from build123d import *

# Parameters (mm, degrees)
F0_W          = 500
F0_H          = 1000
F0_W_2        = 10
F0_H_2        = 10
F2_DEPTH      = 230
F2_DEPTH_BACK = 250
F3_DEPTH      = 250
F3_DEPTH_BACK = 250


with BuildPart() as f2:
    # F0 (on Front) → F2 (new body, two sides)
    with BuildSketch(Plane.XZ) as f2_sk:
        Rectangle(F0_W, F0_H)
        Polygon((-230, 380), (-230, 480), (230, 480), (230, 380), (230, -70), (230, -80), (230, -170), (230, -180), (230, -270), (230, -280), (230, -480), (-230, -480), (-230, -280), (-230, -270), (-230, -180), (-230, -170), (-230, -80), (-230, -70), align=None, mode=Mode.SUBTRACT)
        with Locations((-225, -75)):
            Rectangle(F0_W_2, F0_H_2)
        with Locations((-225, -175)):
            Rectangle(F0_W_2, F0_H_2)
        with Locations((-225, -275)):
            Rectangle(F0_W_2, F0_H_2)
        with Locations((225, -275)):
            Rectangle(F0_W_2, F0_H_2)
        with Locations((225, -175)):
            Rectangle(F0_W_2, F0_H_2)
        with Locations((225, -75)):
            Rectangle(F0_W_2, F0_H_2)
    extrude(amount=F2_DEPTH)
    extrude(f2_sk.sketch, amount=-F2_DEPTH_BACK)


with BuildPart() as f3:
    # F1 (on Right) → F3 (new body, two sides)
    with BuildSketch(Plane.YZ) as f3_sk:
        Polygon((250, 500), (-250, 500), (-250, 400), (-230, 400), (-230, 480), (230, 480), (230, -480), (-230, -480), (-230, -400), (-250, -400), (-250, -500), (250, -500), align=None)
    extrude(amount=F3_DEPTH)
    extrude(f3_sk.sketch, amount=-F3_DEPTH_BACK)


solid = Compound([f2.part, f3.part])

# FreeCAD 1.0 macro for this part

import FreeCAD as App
import Part
import Sketcher

V = App.Vector
Q = App.Units.Quantity

doc = App.newDocument("Part")
body = doc.addObject("PartDesign::Body", "Body")

# Sketch on XZ plane
sketch1 = body.newObject("Sketcher::SketchObject", "Sketch")
sketch1.AttachmentSupport = (doc.getObject("XZ_Plane"), [""])
sketch1.MapMode = "FlatFace"
sketch1.addGeometry(Part.LineSegment(V(-250, 500, 0), V(-250, -500, 0)), False)
sketch1.addGeometry(Part.LineSegment(V(-250, -500, 0), V(250, -500, 0)), False)
sketch1.addGeometry(Part.LineSegment(V(250, -500, 0), V(250, 500, 0)), False)
sketch1.addGeometry(Part.LineSegment(V(250, 500, 0), V(-250, 500, 0)), False)
sketch1.addGeometry(Part.LineSegment(V(-230, -480, 0), V(-230, -280, 0)), False)
sketch1.addGeometry(Part.LineSegment(V(-230, -280, 0), V(-220, -280, 0)), False)
sketch1.addGeometry(Part.LineSegment(V(-220, -280, 0), V(-220, -270, 0)), False)
sketch1.addGeometry(Part.LineSegment(V(-220, -270, 0), V(-230, -270, 0)), False)
sketch1.addGeometry(Part.LineSegment(V(-230, -270, 0), V(-230, -180, 0)), False)
sketch1.addGeometry(Part.LineSegment(V(-230, -180, 0), V(-220, -180, 0)), False)
sketch1.addGeometry(Part.LineSegment(V(-220, -180, 0), V(-220, -170, 0)), False)
sketch1.addGeometry(Part.LineSegment(V(-220, -170, 0), V(-230, -170, 0)), False)
sketch1.addGeometry(Part.LineSegment(V(-230, -170, 0), V(-230, -80, 0)), False)
sketch1.addGeometry(Part.LineSegment(V(-230, -80, 0), V(-220, -80, 0)), False)
sketch1.addGeometry(Part.LineSegment(V(-220, -80, 0), V(-220, -70, 0)), False)
sketch1.addGeometry(Part.LineSegment(V(-220, -70, 0), V(-230, -70, 0)), False)
sketch1.addGeometry(Part.LineSegment(V(-230, -70, 0), V(-230, 480, 0)), False)
sketch1.addGeometry(Part.LineSegment(V(-230, 480, 0), V(230, 480, 0)), False)
sketch1.addGeometry(Part.LineSegment(V(230, 480, 0), V(230, -70, 0)), False)
sketch1.addGeometry(Part.LineSegment(V(230, -70, 0), V(220, -70, 0)), False)
sketch1.addGeometry(Part.LineSegment(V(220, -70, 0), V(220, -80, 0)), False)
sketch1.addGeometry(Part.LineSegment(V(220, -80, 0), V(230, -80, 0)), False)
sketch1.addGeometry(Part.LineSegment(V(230, -80, 0), V(230, -170, 0)), False)
sketch1.addGeometry(Part.LineSegment(V(230, -170, 0), V(220, -170, 0)), False)
sketch1.addGeometry(Part.LineSegment(V(220, -170, 0), V(220, -180, 0)), False)
sketch1.addGeometry(Part.LineSegment(V(220, -180, 0), V(230, -180, 0)), False)
sketch1.addGeometry(Part.LineSegment(V(230, -180, 0), V(230, -270, 0)), False)
sketch1.addGeometry(Part.LineSegment(V(230, -270, 0), V(220, -270, 0)), False)
sketch1.addGeometry(Part.LineSegment(V(220, -270, 0), V(220, -280, 0)), False)
sketch1.addGeometry(Part.LineSegment(V(220, -280, 0), V(230, -280, 0)), False)
sketch1.addGeometry(Part.LineSegment(V(230, -280, 0), V(230, -480, 0)), False)
sketch1.addGeometry(Part.LineSegment(V(230, -480, 0), V(-230, -480, 0)), False)
sketch1.addConstraint(Sketcher.Constraint("Coincident", 0, 2, 1, 1))
sketch1.addConstraint(Sketcher.Constraint("Coincident", 1, 2, 2, 1))
sketch1.addConstraint(Sketcher.Constraint("Coincident", 2, 2, 3, 1))
sketch1.addConstraint(Sketcher.Constraint("Coincident", 3, 2, 0, 1))
sketch1.addConstraint(Sketcher.Constraint("Coincident", 4, 2, 5, 1))
sketch1.addConstraint(Sketcher.Constraint("Coincident", 5, 2, 6, 1))
sketch1.addConstraint(Sketcher.Constraint("Coincident", 6, 2, 7, 1))
sketch1.addConstraint(Sketcher.Constraint("Coincident", 7, 2, 8, 1))
sketch1.addConstraint(Sketcher.Constraint("Coincident", 8, 2, 9, 1))
sketch1.addConstraint(Sketcher.Constraint("Coincident", 9, 2, 10, 1))
sketch1.addConstraint(Sketcher.Constraint("Coincident", 10, 2, 11, 1))
sketch1.addConstraint(Sketcher.Constraint("Coincident", 11, 2, 12, 1))
sketch1.addConstraint(Sketcher.Constraint("Coincident", 12, 2, 13, 1))
sketch1.addConstraint(Sketcher.Constraint("Coincident", 13, 2, 14, 1))
sketch1.addConstraint(Sketcher.Constraint("Coincident", 14, 2, 15, 1))
sketch1.addConstraint(Sketcher.Constraint("Coincident", 15, 2, 16, 1))
sketch1.addConstraint(Sketcher.Constraint("Coincident", 16, 2, 17, 1))
sketch1.addConstraint(Sketcher.Constraint("Coincident", 17, 2, 18, 1))
sketch1.addConstraint(Sketcher.Constraint("Coincident", 18, 2, 19, 1))
sketch1.addConstraint(Sketcher.Constraint("Coincident", 19, 2, 20, 1))
sketch1.addConstraint(Sketcher.Constraint("Coincident", 20, 2, 21, 1))
sketch1.addConstraint(Sketcher.Constraint("Coincident", 21, 2, 22, 1))
sketch1.addConstraint(Sketcher.Constraint("Coincident", 22, 2, 23, 1))
sketch1.addConstraint(Sketcher.Constraint("Coincident", 23, 2, 24, 1))
sketch1.addConstraint(Sketcher.Constraint("Coincident", 24, 2, 25, 1))
sketch1.addConstraint(Sketcher.Constraint("Coincident", 25, 2, 26, 1))
sketch1.addConstraint(Sketcher.Constraint("Coincident", 26, 2, 27, 1))
sketch1.addConstraint(Sketcher.Constraint("Coincident", 27, 2, 28, 1))
sketch1.addConstraint(Sketcher.Constraint("Coincident", 28, 2, 29, 1))
sketch1.addConstraint(Sketcher.Constraint("Coincident", 29, 2, 30, 1))
sketch1.addConstraint(Sketcher.Constraint("Coincident", 30, 2, 31, 1))
sketch1.addConstraint(Sketcher.Constraint("Coincident", 31, 2, 4, 1))
sketch1.addConstraint(Sketcher.Constraint("Vertical", 0))
sketch1.addConstraint(Sketcher.Constraint("Horizontal", 1))
sketch1.addConstraint(Sketcher.Constraint("Vertical", 2))
sketch1.addConstraint(Sketcher.Constraint("Horizontal", 3))
sketch1.addConstraint(Sketcher.Constraint("Vertical", 4))
sketch1.addConstraint(Sketcher.Constraint("Horizontal", 5))
sketch1.addConstraint(Sketcher.Constraint("Vertical", 6))
sketch1.addConstraint(Sketcher.Constraint("Horizontal", 7))
sketch1.addConstraint(Sketcher.Constraint("Vertical", 8))
sketch1.addConstraint(Sketcher.Constraint("Horizontal", 9))
sketch1.addConstraint(Sketcher.Constraint("Vertical", 10))
sketch1.addConstraint(Sketcher.Constraint("Horizontal", 11))
sketch1.addConstraint(Sketcher.Constraint("Vertical", 12))
sketch1.addConstraint(Sketcher.Constraint("Horizontal", 13))
sketch1.addConstraint(Sketcher.Constraint("Vertical", 14))
sketch1.addConstraint(Sketcher.Constraint("Horizontal", 15))
sketch1.addConstraint(Sketcher.Constraint("Vertical", 16))
sketch1.addConstraint(Sketcher.Constraint("Horizontal", 17))
sketch1.addConstraint(Sketcher.Constraint("Vertical", 18))
sketch1.addConstraint(Sketcher.Constraint("Horizontal", 19))
sketch1.addConstraint(Sketcher.Constraint("Vertical", 20))
sketch1.addConstraint(Sketcher.Constraint("Horizontal", 21))
sketch1.addConstraint(Sketcher.Constraint("Vertical", 22))
sketch1.addConstraint(Sketcher.Constraint("Horizontal", 23))
sketch1.addConstraint(Sketcher.Constraint("Vertical", 24))
sketch1.addConstraint(Sketcher.Constraint("Horizontal", 25))
sketch1.addConstraint(Sketcher.Constraint("Vertical", 26))
sketch1.addConstraint(Sketcher.Constraint("Horizontal", 27))
sketch1.addConstraint(Sketcher.Constraint("Vertical", 28))
sketch1.addConstraint(Sketcher.Constraint("Horizontal", 29))
sketch1.addConstraint(Sketcher.Constraint("Vertical", 30))
sketch1.addConstraint(Sketcher.Constraint("Horizontal", 31))
sketch1.addConstraint(Sketcher.Constraint("Symmetric", 0, 2, 2, 2, -1, 1))
sketch1.addConstraint(Sketcher.Constraint("Symmetric", 16, 2, 30, 2, -1, 1))
sketch1.addConstraint(Sketcher.Constraint("Symmetric", 15, 2, 18, 2, -2))
sketch1.addConstraint(Sketcher.Constraint("Symmetric", 13, 2, 20, 2, -2))
sketch1.addConstraint(Sketcher.Constraint("Symmetric", 11, 2, 22, 2, -2))
sketch1.addConstraint(Sketcher.Constraint("Symmetric", 9, 2, 24, 2, -2))
sketch1.addConstraint(Sketcher.Constraint("Symmetric", 7, 2, 26, 2, -2))
sketch1.addConstraint(Sketcher.Constraint("Symmetric", 5, 2, 28, 2, -2))
sketch1.addConstraint(Sketcher.Constraint("Vertical", 4, 2, 7, 2))
sketch1.addConstraint(Sketcher.Constraint("Vertical", 6, 2, 9, 2))
sketch1.addConstraint(Sketcher.Constraint("Vertical", 8, 2, 11, 2))
sketch1.addConstraint(Sketcher.Constraint("Vertical", 10, 2, 13, 2))
sketch1.addConstraint(Sketcher.Constraint("Vertical", 12, 2, 15, 2))
sketch1.addConstraint(Sketcher.Constraint("Equal", 29, 6))
sketch1.addConstraint(Sketcher.Constraint("Equal", 6, 10))
sketch1.addConstraint(Sketcher.Constraint("Equal", 8, 12))
sketch1.addConstraint(Sketcher.Constraint("Equal", 10, 14))
sketch1.addConstraint(Sketcher.Constraint("DistanceX", 1, 1, 1, 2, Q("500 mm")))
sketch1.addConstraint(Sketcher.Constraint("DistanceX", 5, 1, 5, 2, Q("10 mm")))
sketch1.addConstraint(Sketcher.Constraint("DistanceX", 17, 1, 17, 2, Q("460 mm")))
sketch1.addConstraint(Sketcher.Constraint("DistanceY", 0, 2, 0, 1, Q("1000 mm")))
sketch1.addConstraint(Sketcher.Constraint("DistanceY", 4, 1, 4, 2, Q("200 mm")))
sketch1.addConstraint(Sketcher.Constraint("DistanceY", 8, 1, 8, 2, Q("90 mm")))
sketch1.addConstraint(Sketcher.Constraint("DistanceY", 16, 1, 16, 2, Q("550 mm")))
pad1 = body.newObject("PartDesign::Pad", "Pad")
pad1.Profile = sketch1
pad1.Type = "TwoLengths"
pad1.Length = 230
pad1.Length2 = 250
body2 = doc.addObject("PartDesign::Body", "Body001")

# Sketch on YZ plane
sketch2 = body2.newObject("Sketcher::SketchObject", "Sketch001")
sketch2.AttachmentSupport = (doc.getObject("YZ_Plane001"), [""])
sketch2.MapMode = "FlatFace"
sketch2.addGeometry(Part.LineSegment(V(250, 500, 0), V(-250, 500, 0)), False)
sketch2.addGeometry(Part.LineSegment(V(-250, 500, 0), V(-250, 400, 0)), False)
sketch2.addGeometry(Part.LineSegment(V(-250, 400, 0), V(-230, 400, 0)), False)
sketch2.addGeometry(Part.LineSegment(V(-230, 400, 0), V(-230, 480, 0)), False)
sketch2.addGeometry(Part.LineSegment(V(-230, 480, 0), V(230, 480, 0)), False)
sketch2.addGeometry(Part.LineSegment(V(230, 480, 0), V(230, -480, 0)), False)
sketch2.addGeometry(Part.LineSegment(V(230, -480, 0), V(-230, -480, 0)), False)
sketch2.addGeometry(Part.LineSegment(V(-230, -480, 0), V(-230, -400, 0)), False)
sketch2.addGeometry(Part.LineSegment(V(-230, -400, 0), V(-250, -400, 0)), False)
sketch2.addGeometry(Part.LineSegment(V(-250, -400, 0), V(-250, -500, 0)), False)
sketch2.addGeometry(Part.LineSegment(V(-250, -500, 0), V(250, -500, 0)), False)
sketch2.addGeometry(Part.LineSegment(V(250, -500, 0), V(250, 500, 0)), False)
sketch2.addConstraint(Sketcher.Constraint("Coincident", 0, 2, 1, 1))
sketch2.addConstraint(Sketcher.Constraint("Coincident", 1, 2, 2, 1))
sketch2.addConstraint(Sketcher.Constraint("Coincident", 2, 2, 3, 1))
sketch2.addConstraint(Sketcher.Constraint("Coincident", 3, 2, 4, 1))
sketch2.addConstraint(Sketcher.Constraint("Coincident", 4, 2, 5, 1))
sketch2.addConstraint(Sketcher.Constraint("Coincident", 5, 2, 6, 1))
sketch2.addConstraint(Sketcher.Constraint("Coincident", 6, 2, 7, 1))
sketch2.addConstraint(Sketcher.Constraint("Coincident", 7, 2, 8, 1))
sketch2.addConstraint(Sketcher.Constraint("Coincident", 8, 2, 9, 1))
sketch2.addConstraint(Sketcher.Constraint("Coincident", 9, 2, 10, 1))
sketch2.addConstraint(Sketcher.Constraint("Coincident", 10, 2, 11, 1))
sketch2.addConstraint(Sketcher.Constraint("Coincident", 11, 2, 0, 1))
sketch2.addConstraint(Sketcher.Constraint("Horizontal", 0))
sketch2.addConstraint(Sketcher.Constraint("Vertical", 1))
sketch2.addConstraint(Sketcher.Constraint("Horizontal", 2))
sketch2.addConstraint(Sketcher.Constraint("Vertical", 3))
sketch2.addConstraint(Sketcher.Constraint("Horizontal", 4))
sketch2.addConstraint(Sketcher.Constraint("Vertical", 5))
sketch2.addConstraint(Sketcher.Constraint("Horizontal", 6))
sketch2.addConstraint(Sketcher.Constraint("Vertical", 7))
sketch2.addConstraint(Sketcher.Constraint("Horizontal", 8))
sketch2.addConstraint(Sketcher.Constraint("Vertical", 9))
sketch2.addConstraint(Sketcher.Constraint("Horizontal", 10))
sketch2.addConstraint(Sketcher.Constraint("Vertical", 11))
sketch2.addConstraint(Sketcher.Constraint("Symmetric", 3, 2, 5, 2, -1, 1))
sketch2.addConstraint(Sketcher.Constraint("Symmetric", 0, 2, 10, 2, -1, 1))
sketch2.addConstraint(Sketcher.Constraint("Symmetric", 2, 2, 7, 2, -1))
sketch2.addConstraint(Sketcher.Constraint("Vertical", 1, 2, 8, 2))
sketch2.addConstraint(Sketcher.Constraint("DistanceX", 0, 2, 0, 1, Q("500 mm")))
sketch2.addConstraint(Sketcher.Constraint("DistanceX", 2, 1, 2, 2, Q("20 mm")))
sketch2.addConstraint(Sketcher.Constraint("DistanceY", 1, 2, 1, 1, Q("100 mm")))
sketch2.addConstraint(Sketcher.Constraint("DistanceY", 3, 1, 3, 2, Q("80 mm")))
sketch2.addConstraint(Sketcher.Constraint("DistanceY", 5, 2, 5, 1, Q("960 mm")))
pad2 = body2.newObject("PartDesign::Pad", "Pad001")
pad2.Profile = sketch2
pad2.Type = "TwoLengths"
pad2.Length = 250
pad2.Length2 = 250

doc.recompute()
